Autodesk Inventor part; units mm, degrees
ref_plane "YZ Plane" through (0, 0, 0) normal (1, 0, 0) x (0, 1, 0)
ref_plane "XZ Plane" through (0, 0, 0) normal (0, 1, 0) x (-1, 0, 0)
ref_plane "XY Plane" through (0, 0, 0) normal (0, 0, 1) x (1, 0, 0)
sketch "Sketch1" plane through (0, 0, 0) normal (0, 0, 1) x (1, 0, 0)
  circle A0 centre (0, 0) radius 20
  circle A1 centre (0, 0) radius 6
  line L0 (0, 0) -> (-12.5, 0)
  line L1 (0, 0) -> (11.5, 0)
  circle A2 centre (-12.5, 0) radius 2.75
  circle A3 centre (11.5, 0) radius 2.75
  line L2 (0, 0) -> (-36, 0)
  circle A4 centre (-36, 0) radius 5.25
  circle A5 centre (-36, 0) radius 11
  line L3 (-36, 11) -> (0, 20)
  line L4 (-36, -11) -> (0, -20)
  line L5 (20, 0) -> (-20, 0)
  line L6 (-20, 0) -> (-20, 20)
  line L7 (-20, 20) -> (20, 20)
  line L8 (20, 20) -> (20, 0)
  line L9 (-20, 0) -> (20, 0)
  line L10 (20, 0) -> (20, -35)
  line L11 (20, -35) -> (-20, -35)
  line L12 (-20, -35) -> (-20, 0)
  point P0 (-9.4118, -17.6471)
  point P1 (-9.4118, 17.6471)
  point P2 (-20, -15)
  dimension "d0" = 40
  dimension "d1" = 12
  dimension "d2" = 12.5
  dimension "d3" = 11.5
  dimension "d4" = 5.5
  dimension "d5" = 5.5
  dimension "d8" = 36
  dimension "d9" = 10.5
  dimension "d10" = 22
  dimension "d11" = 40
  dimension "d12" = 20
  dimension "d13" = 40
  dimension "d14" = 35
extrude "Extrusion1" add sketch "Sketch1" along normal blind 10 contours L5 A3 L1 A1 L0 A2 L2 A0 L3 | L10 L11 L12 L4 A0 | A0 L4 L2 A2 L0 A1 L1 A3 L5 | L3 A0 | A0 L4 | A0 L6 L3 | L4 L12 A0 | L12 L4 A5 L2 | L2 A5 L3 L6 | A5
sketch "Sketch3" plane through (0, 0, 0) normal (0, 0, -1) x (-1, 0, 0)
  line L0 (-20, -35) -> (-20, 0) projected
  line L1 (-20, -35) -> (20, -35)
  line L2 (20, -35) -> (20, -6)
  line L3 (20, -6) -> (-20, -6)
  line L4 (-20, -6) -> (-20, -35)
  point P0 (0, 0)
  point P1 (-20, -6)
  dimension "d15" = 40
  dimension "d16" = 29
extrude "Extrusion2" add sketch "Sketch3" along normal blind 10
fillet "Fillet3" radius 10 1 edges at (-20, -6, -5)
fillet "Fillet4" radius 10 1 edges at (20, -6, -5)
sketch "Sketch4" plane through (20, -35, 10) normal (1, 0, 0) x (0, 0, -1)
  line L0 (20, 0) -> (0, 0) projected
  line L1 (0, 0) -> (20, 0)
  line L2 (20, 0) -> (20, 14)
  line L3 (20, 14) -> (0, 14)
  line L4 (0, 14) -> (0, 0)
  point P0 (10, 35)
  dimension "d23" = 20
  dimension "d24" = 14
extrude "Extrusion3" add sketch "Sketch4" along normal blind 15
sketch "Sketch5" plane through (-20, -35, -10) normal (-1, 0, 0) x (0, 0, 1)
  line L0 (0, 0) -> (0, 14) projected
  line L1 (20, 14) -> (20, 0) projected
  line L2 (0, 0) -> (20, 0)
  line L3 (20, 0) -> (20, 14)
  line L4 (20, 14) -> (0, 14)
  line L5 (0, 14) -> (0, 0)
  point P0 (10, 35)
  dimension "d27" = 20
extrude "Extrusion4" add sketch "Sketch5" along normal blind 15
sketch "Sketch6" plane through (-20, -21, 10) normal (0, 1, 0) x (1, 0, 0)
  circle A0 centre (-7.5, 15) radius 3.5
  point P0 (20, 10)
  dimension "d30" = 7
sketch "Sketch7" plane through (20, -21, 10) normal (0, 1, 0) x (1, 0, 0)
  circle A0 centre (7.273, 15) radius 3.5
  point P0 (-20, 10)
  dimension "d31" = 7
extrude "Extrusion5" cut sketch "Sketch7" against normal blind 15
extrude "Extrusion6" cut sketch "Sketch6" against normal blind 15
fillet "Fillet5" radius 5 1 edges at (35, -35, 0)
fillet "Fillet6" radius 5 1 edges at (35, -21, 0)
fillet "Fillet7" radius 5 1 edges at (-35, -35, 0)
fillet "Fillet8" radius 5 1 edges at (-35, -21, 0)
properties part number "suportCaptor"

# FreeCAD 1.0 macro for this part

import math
import FreeCAD as App
import Part
import Sketcher
from FreeCAD import Vector


def edges_at(feature, points):
    """Names of the edges that pass closest to the given points."""
    edges = feature.Shape.Edges
    near = lambda p: min(range(len(edges)), key=lambda i: edges[i].distToShape(Part.Vertex(*p))[0])
    return sorted({f"Edge{near(p) + 1}" for p in points})

doc = App.newDocument("Part")
body = doc.addObject("PartDesign::Body", "Body")

# Sketch on XY plane
sketch1 = doc.addObject("Sketcher::SketchObject", "Sketch")
body.addObject(sketch1)
sketch1.AttachmentSupport = (doc.XY_Plane, [""])
sketch1.MapMode = "FlatFace"
sketch1.addGeometry(Part.ArcOfCircle(Part.Circle(Vector(0, 0, 0), Vector(0, 0, 1), 20), math.radians(0), math.radians(118)), False)
sketch1.addGeometry(Part.LineSegment(Vector(-9.4, 17.6, 0), Vector(-36, 11, 0)), False)
sketch1.addGeometry(Part.ArcOfCircle(Part.Circle(Vector(-36, 0, 0), Vector(0, 0, 1), 11), math.radians(90), math.radians(270)), False)
sketch1.addGeometry(Part.LineSegment(Vector(-36, -11, 0), Vector(-20, -15, 0)), False)
sketch1.addGeometry(Part.LineSegment(Vector(-20, -15, 0), Vector(-20, -35, 0)), False)
sketch1.addGeometry(Part.LineSegment(Vector(-20, -35, 0), Vector(20, -35, 0)), False)
sketch1.addGeometry(Part.LineSegment(Vector(20, -35, 0), Vector(20, 0, 0)), False)
sketch1.addGeometry(Part.Circle(Vector(11.5, 0, 0), Vector(0, 0, 1), 2.8), False)
sketch1.addGeometry(Part.Circle(Vector(0, 0, 0), Vector(0, 0, 1), 6), False)
sketch1.addGeometry(Part.Circle(Vector(-12.5, 0, 0), Vector(0, 0, 1), 2.8), False)
sketch1.addGeometry(Part.Circle(Vector(-36, 0, 0), Vector(0, 0, 1), 5.2), False)
sketch1.addConstraint(Sketcher.Constraint("Coincident", 0, 2, 1, 1))
sketch1.addConstraint(Sketcher.Constraint("Coincident", 1, 2, 2, 1))
sketch1.addConstraint(Sketcher.Constraint("Coincident", 2, 2, 3, 1))
sketch1.addConstraint(Sketcher.Constraint("Coincident", 3, 2, 4, 1))
sketch1.addConstraint(Sketcher.Constraint("Coincident", 4, 2, 5, 1))
sketch1.addConstraint(Sketcher.Constraint("Coincident", 5, 2, 6, 1))
sketch1.addConstraint(Sketcher.Constraint("Tangent", 6, 2, 0, 1))
sketch1.addConstraint(Sketcher.Constraint("Vertical", 4))
sketch1.addConstraint(Sketcher.Constraint("Horizontal", 5))
sketch1.addConstraint(Sketcher.Constraint("Vertical", 6))
sketch1.addConstraint(Sketcher.Constraint("Coincident", 0, 3, -1, 1))
sketch1.addConstraint(Sketcher.Constraint("Coincident", 8, 3, -1, 1))
sketch1.addConstraint(Sketcher.Constraint("Coincident", 10, 3, 2, 3))
sketch1.addConstraint(Sketcher.Constraint("Equal", 7, 9))
sketch1.addConstraint(Sketcher.Constraint("Symmetric", 1, 2, 2, 2, -1))
sketch1.addConstraint(Sketcher.Constraint("PointOnObject", 7, 3, -1))
sketch1.addConstraint(Sketcher.Constraint("PointOnObject", 9, 3, -1))
sketch1.addConstraint(Sketcher.Constraint("Vertical", 10, 3, 1, 2))
sketch1.addConstraint(Sketcher.Constraint("Diameter", 8, 12.0))
sketch1.addConstraint(Sketcher.Constraint("Radius", 0, 20.0))
sketch1.addConstraint(Sketcher.Constraint("Radius", 2, 11.0))
sketch1.addConstraint(Sketcher.Constraint("Diameter", 7, 5.5))
sketch1.addConstraint(Sketcher.Constraint("Diameter", 10, 10.5))
sketch1.addConstraint(Sketcher.Constraint("DistanceX", 5, 1, 5, 2, 40.0))
sketch1.addConstraint(Sketcher.Constraint("DistanceY", 4, 2, 4, 1, 20.0))
sketch1.addConstraint(Sketcher.Constraint("DistanceY", 6, 1, 6, 2, 35.0))
sketch1.addConstraint(Sketcher.Constraint("DistanceX", 2, 3, -1, 1, 36.0))
sketch1.addConstraint(Sketcher.Constraint("DistanceX", -1, 1, 7, 3, 11.5))
sketch1.addConstraint(Sketcher.Constraint("DistanceX", 9, 3, -1, 1, 12.5))
sketch1.addConstraint(Sketcher.Constraint("DistanceY", -1, 1, 0, 2, 17.647))
pad1 = doc.addObject("PartDesign::Pad", "Pad")
body.addObject(pad1)
pad1.Profile = sketch1
pad1.Length = 10

# Sketch on XY plane
sketch2 = doc.addObject("Sketcher::SketchObject", "Sketch001")
body.addObject(sketch2)
sketch2.AttachmentSupport = (doc.XY_Plane, [""])
sketch2.MapMode = "FlatFace"
sketch2.addGeometry(Part.LineSegment(Vector(20, -6, 0), Vector(20, -35, 0)), False)
sketch2.addGeometry(Part.LineSegment(Vector(20, -35, 0), Vector(-20, -35, 0)), False)
sketch2.addGeometry(Part.LineSegment(Vector(-20, -35, 0), Vector(-20, -6, 0)), False)
sketch2.addGeometry(Part.LineSegment(Vector(-20, -6, 0), Vector(20, -6, 0)), False)
sketch2.addConstraint(Sketcher.Constraint("Coincident", 0, 2, 1, 1))
sketch2.addConstraint(Sketcher.Constraint("Coincident", 1, 2, 2, 1))
sketch2.addConstraint(Sketcher.Constraint("Coincident", 2, 2, 3, 1))
sketch2.addConstraint(Sketcher.Constraint("Coincident", 3, 2, 0, 1))
sketch2.addConstraint(Sketcher.Constraint("Vertical", 0))
sketch2.addConstraint(Sketcher.Constraint("Horizontal", 1))
sketch2.addConstraint(Sketcher.Constraint("Vertical", 2))
sketch2.addConstraint(Sketcher.Constraint("Horizontal", 3))
sketch2.addConstraint(Sketcher.Constraint("DistanceX", 1, 2, 1, 1, 40.0))
sketch2.addConstraint(Sketcher.Constraint("DistanceY", 0, 2, 0, 1, 29.0))
sketch2.addConstraint(Sketcher.Constraint("DistanceX", -1, 1, 0, 2, 20.0))
sketch2.addConstraint(Sketcher.Constraint("DistanceY", 0, 2, -1, 1, 35.0))
pad2 = doc.addObject("PartDesign::Pad", "Pad001")
body.addObject(pad2)
pad2.Profile = sketch2
pad2.Length = 10
pad2.Reversed = True
doc.recompute()

fillet = doc.addObject("PartDesign::Fillet", "Fillet")
body.addObject(fillet)
fillet.Base = (pad2, edges_at(pad2, [(-20, -6, -5)]))
fillet.Radius = 10
doc.recompute()

fillet2 = doc.addObject("PartDesign::Fillet", "Fillet001")
body.addObject(fillet2)
fillet2.Base = (fillet, edges_at(fillet, [(20, -6, -5)]))
fillet2.Radius = 10

# Sketch on YZ plane
sketch3 = doc.addObject("Sketcher::SketchObject", "Sketch002")
body.addObject(sketch3)
sketch3.AttachmentSupport = (doc.YZ_Plane, [""])
sketch3.MapMode = "FlatFace"
sketch3.AttachmentOffset = App.Placement(Vector(0, 0, 20), App.Rotation())
sketch3.addGeometry(Part.LineSegment(Vector(-35, 10, 0), Vector(-35, -10, 0)), False)
sketch3.addGeometry(Part.LineSegment(Vector(-35, -10, 0), Vector(-21, -10, 0)), False)
sketch3.addGeometry(Part.LineSegment(Vector(-21, -10, 0), Vector(-21, 10, 0)), False)
sketch3.addGeometry(Part.LineSegment(Vector(-21, 10, 0), Vector(-35, 10, 0)), False)
sketch3.addConstraint(Sketcher.Constraint("Coincident", 0, 2, 1, 1))
sketch3.addConstraint(Sketcher.Constraint("Coincident", 1, 2, 2, 1))
sketch3.addConstraint(Sketcher.Constraint("Coincident", 2, 2, 3, 1))
sketch3.addConstraint(Sketcher.Constraint("Coincident", 3, 2, 0, 1))
sketch3.addConstraint(Sketcher.Constraint("Vertical", 0))
sketch3.addConstraint(Sketcher.Constraint("Horizontal", 1))
sketch3.addConstraint(Sketcher.Constraint("Vertical", 2))
sketch3.addConstraint(Sketcher.Constraint("Horizontal", 3))
sketch3.addConstraint(Sketcher.Constraint("DistanceX", 1, 1, 1, 2, 14.0))
sketch3.addConstraint(Sketcher.Constraint("DistanceY", 0, 2, 0, 1, 20.0))
sketch3.addConstraint(Sketcher.Constraint("DistanceX", 0, 2, -1, 1, 35.0))
sketch3.addConstraint(Sketcher.Constraint("DistanceY", 0, 2, -1, 1, 10.0))
pad3 = doc.addObject("PartDesign::Pad", "Pad002")
body.addObject(pad3)
pad3.Profile = sketch3
pad3.Length = 15

# Sketch on YZ plane
sketch4 = doc.addObject("Sketcher::SketchObject", "Sketch003")
body.addObject(sketch4)
sketch4.AttachmentSupport = (doc.YZ_Plane, [""])
sketch4.MapMode = "FlatFace"
sketch4.AttachmentOffset = App.Placement(Vector(0, 0, -20), App.Rotation())
sketch4.addGeometry(Part.LineSegment(Vector(-21, -10, 0), Vector(-35, -10, 0)), False)
sketch4.addGeometry(Part.LineSegment(Vector(-35, -10, 0), Vector(-35, 10, 0)), False)
sketch4.addGeometry(Part.LineSegment(Vector(-35, 10, 0), Vector(-21, 10, 0)), False)
sketch4.addGeometry(Part.LineSegment(Vector(-21, 10, 0), Vector(-21, -10, 0)), False)
sketch4.addConstraint(Sketcher.Constraint("Coincident", 0, 2, 1, 1))
sketch4.addConstraint(Sketcher.Constraint("Coincident", 1, 2, 2, 1))
sketch4.addConstraint(Sketcher.Constraint("Coincident", 2, 2, 3, 1))
sketch4.addConstraint(Sketcher.Constraint("Coincident", 3, 2, 0, 1))
sketch4.addConstraint(Sketcher.Constraint("Horizontal", 0))
sketch4.addConstraint(Sketcher.Constraint("Vertical", 1))
sketch4.addConstraint(Sketcher.Constraint("Horizontal", 2))
sketch4.addConstraint(Sketcher.Constraint("Vertical", 3))
sketch4.addConstraint(Sketcher.Constraint("DistanceY", 1, 1, 1, 2, 20.0))
sketch4.addConstraint(Sketcher.Constraint("DistanceX", 0, 2, 0, 1, 14.0))
sketch4.addConstraint(Sketcher.Constraint("DistanceX", 0, 2, -1, 1, 35.0))
sketch4.addConstraint(Sketcher.Constraint("DistanceY", 0, 2, -1, 1, 10.0))
pad4 = doc.addObject("PartDesign::Pad", "Pad003")
body.addObject(pad4)
pad4.Profile = sketch4
pad4.Length = 15
pad4.Reversed = True

# Sketch on XZ plane
sketch5 = doc.addObject("Sketcher::SketchObject", "Sketch004")
body.addObject(sketch5)
sketch5.AttachmentSupport = (doc.XZ_Plane, [""])
sketch5.MapMode = "FlatFace"
sketch5.AttachmentOffset = App.Placement(Vector(0, 0, 21), App.Rotation())
sketch5.addGeometry(Part.Circle(Vector(27.3, -5, 0), Vector(0, 0, 1), 3.5), False)
sketch5.addConstraint(Sketcher.Constraint("Diameter", 0, 7.0))
sketch5.addConstraint(Sketcher.Constraint("DistanceY", 0, 3, -1, 1, 5.0))
sketch5.addConstraint(Sketcher.Constraint("DistanceX", -1, 1, 0, 3, 27.273))
pocket1 = doc.addObject("PartDesign::Pocket", "Pocket")
body.addObject(pocket1)
pocket1.Profile = sketch5
pocket1.Length = 15
pocket1.Reversed = True

# Sketch on XZ plane
sketch6 = doc.addObject("Sketcher::SketchObject", "Sketch005")
body.addObject(sketch6)
sketch6.AttachmentSupport = (doc.XZ_Plane, [""])
sketch6.MapMode = "FlatFace"
sketch6.AttachmentOffset = App.Placement(Vector(0, 0, 21), App.Rotation())
sketch6.addGeometry(Part.Circle(Vector(-27.5, -5, 0), Vector(0, 0, 1), 3.5), False)
sketch6.addConstraint(Sketcher.Constraint("Diameter", 0, 7.0))
sketch6.addConstraint(Sketcher.Constraint("DistanceY", 0, 3, -1, 1, 5.0))
sketch6.addConstraint(Sketcher.Constraint("DistanceX", 0, 3, -1, 1, 27.5))
pocket2 = doc.addObject("PartDesign::Pocket", "Pocket001")
body.addObject(pocket2)
pocket2.Profile = sketch6
pocket2.Length = 15
pocket2.Reversed = True
doc.recompute()

fillet3 = doc.addObject("PartDesign::Fillet", "Fillet002")
body.addObject(fillet3)
fillet3.Base = (pocket2, edges_at(pocket2, [(35, -35, 0)]))
fillet3.Radius = 5
doc.recompute()

fillet4 = doc.addObject("PartDesign::Fillet", "Fillet003")
body.addObject(fillet4)
fillet4.Base = (fillet3, edges_at(fillet3, [(35, -21, 0)]))
fillet4.Radius = 5
doc.recompute()

fillet5 = doc.addObject("PartDesign::Fillet", "Fillet004")
body.addObject(fillet5)
fillet5.Base = (fillet4, edges_at(fillet4, [(-35, -35, 0)]))
fillet5.Radius = 5
doc.recompute()

fillet6 = doc.addObject("PartDesign::Fillet", "Fillet005")
body.addObject(fillet6)
fillet6.Base = (fillet5, edges_at(fillet5, [(-35, -21, 0)]))
fillet6.Radius = 5

doc.recompute()
